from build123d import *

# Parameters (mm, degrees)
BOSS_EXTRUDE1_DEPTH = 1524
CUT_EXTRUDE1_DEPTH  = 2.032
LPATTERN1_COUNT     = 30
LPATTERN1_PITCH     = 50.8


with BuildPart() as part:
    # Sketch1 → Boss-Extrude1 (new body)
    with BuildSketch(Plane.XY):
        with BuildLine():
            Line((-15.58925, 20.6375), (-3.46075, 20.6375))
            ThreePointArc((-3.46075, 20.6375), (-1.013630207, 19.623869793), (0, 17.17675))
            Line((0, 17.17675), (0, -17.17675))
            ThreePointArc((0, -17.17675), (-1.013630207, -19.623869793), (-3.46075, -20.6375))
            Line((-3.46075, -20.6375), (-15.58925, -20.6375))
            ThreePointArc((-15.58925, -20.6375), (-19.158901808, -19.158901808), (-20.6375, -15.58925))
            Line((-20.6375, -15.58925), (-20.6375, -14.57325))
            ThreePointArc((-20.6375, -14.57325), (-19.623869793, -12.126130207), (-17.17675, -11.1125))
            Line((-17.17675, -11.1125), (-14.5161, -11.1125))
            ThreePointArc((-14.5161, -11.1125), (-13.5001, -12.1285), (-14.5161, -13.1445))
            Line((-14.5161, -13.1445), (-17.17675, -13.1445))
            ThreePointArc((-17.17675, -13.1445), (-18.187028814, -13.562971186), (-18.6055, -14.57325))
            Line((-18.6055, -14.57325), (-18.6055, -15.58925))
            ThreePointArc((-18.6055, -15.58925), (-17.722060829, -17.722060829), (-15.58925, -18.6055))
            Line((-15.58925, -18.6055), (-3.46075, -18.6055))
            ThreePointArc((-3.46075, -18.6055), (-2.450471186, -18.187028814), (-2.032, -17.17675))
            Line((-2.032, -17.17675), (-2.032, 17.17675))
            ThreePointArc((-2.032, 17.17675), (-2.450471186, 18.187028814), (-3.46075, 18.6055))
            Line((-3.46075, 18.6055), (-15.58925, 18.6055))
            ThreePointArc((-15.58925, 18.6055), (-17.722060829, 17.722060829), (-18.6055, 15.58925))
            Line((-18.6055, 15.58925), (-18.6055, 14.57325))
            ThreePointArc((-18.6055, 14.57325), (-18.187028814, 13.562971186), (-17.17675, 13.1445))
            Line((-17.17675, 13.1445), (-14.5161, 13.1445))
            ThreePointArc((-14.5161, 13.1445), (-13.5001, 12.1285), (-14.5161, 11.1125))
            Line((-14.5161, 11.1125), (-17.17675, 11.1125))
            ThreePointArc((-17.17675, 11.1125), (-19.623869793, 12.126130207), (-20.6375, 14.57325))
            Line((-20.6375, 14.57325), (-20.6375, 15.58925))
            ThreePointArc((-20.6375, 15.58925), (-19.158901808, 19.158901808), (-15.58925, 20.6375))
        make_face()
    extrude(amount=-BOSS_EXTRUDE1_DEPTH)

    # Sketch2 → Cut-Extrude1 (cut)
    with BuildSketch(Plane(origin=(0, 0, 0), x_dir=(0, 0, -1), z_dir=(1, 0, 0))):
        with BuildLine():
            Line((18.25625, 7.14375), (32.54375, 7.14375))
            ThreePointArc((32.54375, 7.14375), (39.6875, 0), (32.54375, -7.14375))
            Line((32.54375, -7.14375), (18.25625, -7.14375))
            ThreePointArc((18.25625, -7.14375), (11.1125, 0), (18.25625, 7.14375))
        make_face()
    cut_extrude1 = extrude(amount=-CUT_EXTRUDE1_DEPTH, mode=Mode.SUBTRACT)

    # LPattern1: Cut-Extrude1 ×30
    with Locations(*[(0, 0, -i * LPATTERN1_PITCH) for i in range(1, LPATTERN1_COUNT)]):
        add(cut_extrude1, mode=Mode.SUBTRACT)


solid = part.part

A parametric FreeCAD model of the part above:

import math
import FreeCAD as App
import Part
import Sketcher
from FreeCAD import Vector
Q = App.Units.Quantity

doc = App.newDocument("Part")
body = doc.addObject("PartDesign::Body", "Body")

# Sketch on XY plane
sketch1 = doc.addObject("Sketcher::SketchObject", "Sketch")
body.addObject(sketch1)
sketch1.AttachmentSupport = (doc.XY_Plane, [""])
sketch1.MapMode = "FlatFace"
sketch1.addGeometry([
    Part.LineSegment(Vector(-3.5, 20.6, 0), Vector(-15.6, 20.6, 0)),  # 0
    Part.ArcOfCircle(Part.Circle(Vector(-15.6, 15.6, 0), Vector(0, 0, 1), 5), math.radians(90), math.radians(180)),  # 1
    Part.LineSegment(Vector(-20.6, 15.6, 0), Vector(-20.6, 14.6, 0)),  # 2
    Part.ArcOfCircle(Part.Circle(Vector(-17.2, 14.6, 0), Vector(0, 0, 1), 3.5), math.radians(180), math.radians(270)),  # 3
    Part.LineSegment(Vector(-17.2, 11.1, 0), Vector(-14.5, 11.1, 0)),  # 4
    Part.ArcOfCircle(Part.Circle(Vector(-14.5, 12.1, 0), Vector(0, 0, 1), 1), math.radians(-90), math.radians(90)),  # 5
    Part.LineSegment(Vector(-14.5, 13.1, 0), Vector(-17.2, 13.1, 0)),  # 6
    Part.ArcOfCircle(Part.Circle(Vector(-17.2, 14.6, 0), Vector(0, 0, 1), 1.4), math.radians(180), math.radians(270)),  # 7
    Part.LineSegment(Vector(-18.6, 14.6, 0), Vector(-18.6, 15.6, 0)),  # 8
    Part.ArcOfCircle(Part.Circle(Vector(-15.6, 15.6, 0), Vector(0, 0, 1), 3), math.radians(90), math.radians(180)),  # 9
    Part.LineSegment(Vector(-15.6, 18.6, 0), Vector(-3.5, 18.6, 0)),  # 10
    Part.ArcOfCircle(Part.Circle(Vector(-3.5, 17.2, 0), Vector(0, 0, 1), 1.4), math.radians(0), math.radians(90)),  # 11
    Part.LineSegment(Vector(-2, 17.2, 0), Vector(-2, -17.2, 0)),  # 12
    Part.ArcOfCircle(Part.Circle(Vector(-3.5, -17.2, 0), Vector(0, 0, 1), 1.4), math.radians(-90), math.radians(0)),  # 13
    Part.LineSegment(Vector(-3.5, -18.6, 0), Vector(-15.6, -18.6, 0)),  # 14
    Part.ArcOfCircle(Part.Circle(Vector(-15.6, -15.6, 0), Vector(0, 0, 1), 3), math.radians(180), math.radians(270)),  # 15
    Part.LineSegment(Vector(-18.6, -15.6, 0), Vector(-18.6, -14.6, 0)),  # 16
    Part.ArcOfCircle(Part.Circle(Vector(-17.2, -14.6, 0), Vector(0, 0, 1), 1.4), math.radians(90), math.radians(180)),  # 17
    Part.LineSegment(Vector(-17.2, -13.1, 0), Vector(-14.5, -13.1, 0)),  # 18
    Part.ArcOfCircle(Part.Circle(Vector(-14.5, -12.1, 0), Vector(0, 0, 1), 1), math.radians(-90), math.radians(90)),  # 19
    Part.LineSegment(Vector(-14.5, -11.1, 0), Vector(-17.2, -11.1, 0)),  # 20
    Part.ArcOfCircle(Part.Circle(Vector(-17.2, -14.6, 0), Vector(0, 0, 1), 3.5), math.radians(90), math.radians(180)),  # 21
    Part.LineSegment(Vector(-20.6, -14.6, 0), Vector(-20.6, -15.6, 0)),  # 22
    Part.ArcOfCircle(Part.Circle(Vector(-15.6, -15.6, 0), Vector(0, 0, 1), 5), math.radians(180), math.radians(270)),  # 23
    Part.LineSegment(Vector(-15.6, -20.6, 0), Vector(-3.5, -20.6, 0)),  # 24
    Part.ArcOfCircle(Part.Circle(Vector(-3.5, -17.2, 0), Vector(0, 0, 1), 3.5), math.radians(-90), math.radians(0)),  # 25
    Part.LineSegment(Vector(0, -17.2, 0), Vector(0, 17.2, 0)),  # 26
    Part.ArcOfCircle(Part.Circle(Vector(-3.5, 17.2, 0), Vector(0, 0, 1), 3.5), math.radians(0), math.radians(90)),  # 27
], False)
sketch1.addConstraint([
    Sketcher.Constraint("Tangent", 0, 2, 1, 1),
    Sketcher.Constraint("Tangent", 1, 2, 2, 1),
    Sketcher.Constraint("Tangent", 2, 2, 3, 1),
    Sketcher.Constraint("Tangent", 3, 2, 4, 1),
    Sketcher.Constraint("Tangent", 4, 2, 5, 1),
    Sketcher.Constraint("Tangent", 5, 2, 6, 1),
    Sketcher.Constraint("Tangent", 6, 2, 7, 2),
    Sketcher.Constraint("Tangent", 7, 1, 8, 1),
    Sketcher.Constraint("Tangent", 8, 2, 9, 2),
    Sketcher.Constraint("Tangent", 9, 1, 10, 1),
    Sketcher.Constraint("Tangent", 10, 2, 11, 2),
    Sketcher.Constraint("Tangent", 11, 1, 12, 1),
    Sketcher.Constraint("Tangent", 12, 2, 13, 2),
    Sketcher.Constraint("Tangent", 13, 1, 14, 1),
    Sketcher.Constraint("Tangent", 14, 2, 15, 2),
    Sketcher.Constraint("Tangent", 15, 1, 16, 1),
    Sketcher.Constraint("Tangent", 16, 2, 17, 2),
    Sketcher.Constraint("Tangent", 17, 1, 18, 1),
    Sketcher.Constraint("Tangent", 18, 2, 19, 1),
    Sketcher.Constraint("Tangent", 19, 2, 20, 1),
    Sketcher.Constraint("Tangent", 20, 2, 21, 1),
    Sketcher.Constraint("Tangent", 21, 2, 22, 1),
    Sketcher.Constraint("Tangent", 22, 2, 23, 1),
    Sketcher.Constraint("Tangent", 23, 2, 24, 1),
    Sketcher.Constraint("Tangent", 24, 2, 25, 1),
    Sketcher.Constraint("Tangent", 25, 2, 26, 1),
    Sketcher.Constraint("Tangent", 26, 2, 27, 1),
    Sketcher.Constraint("Tangent", 27, 2, 0, 1),
    Sketcher.Constraint("Horizontal", 0),
    Sketcher.Constraint("Vertical", 2),
    Sketcher.Constraint("Horizontal", 4),
    Sketcher.Constraint("Horizontal", 6),
    Sketcher.Constraint("Vertical", 8),
    Sketcher.Constraint("Horizontal", 10),
    Sketcher.Constraint("Vertical", 12),
    Sketcher.Constraint("Horizontal", 14),
    Sketcher.Constraint("Vertical", 16),
    Sketcher.Constraint("Horizontal", 18),
    Sketcher.Constraint("Horizontal", 20),
    Sketcher.Constraint("Vertical", 22),
    Sketcher.Constraint("Horizontal", 24),
    Sketcher.Constraint("Vertical", 26),
    Sketcher.Constraint("Coincident", 7, 3, 3, 3),
    Sketcher.Constraint("Coincident", 9, 3, 1, 3),
    Sketcher.Constraint("Coincident", 21, 3, 17, 3),
    Sketcher.Constraint("Coincident", 23, 3, 15, 3),
    Sketcher.Constraint("Coincident", 25, 3, 13, 3),
    Sketcher.Constraint("Coincident", 27, 3, 11, 3),
    Sketcher.Constraint("Equal", 7, 11),
    Sketcher.Constraint("Equal", 11, 13),
    Sketcher.Constraint("Equal", 9, 15),
    Sketcher.Constraint("Equal", 13, 17),
    Sketcher.Constraint("Symmetric", 25, 2, 26, 2, -1, 1),
    Sketcher.Constraint("Symmetric", 3, 3, 17, 3, -1),
    Sketcher.Constraint("Vertical", 5, 3, 19, 3),
    Sketcher.Constraint("Radius", 5, Q("0.04 in")),
    Sketcher.Constraint("DistanceY", 2, 2, 2, 1, Q("0.04 in")),
    Sketcher.Constraint("DistanceX", 3, 3, 11, 3, Q("0.54 in")),
    Sketcher.Constraint("DistanceY", 13, 3, 7, 3, Q("1.25 in")),
    Sketcher.Constraint("DistanceX", 0, 2, 0, 1, Q("0.4775 in")),
    Sketcher.Constraint("DistanceY", -1, 1, 0, 2, Q("0.8125 in")),
    Sketcher.Constraint("DistanceX", 1, 2, 5, 3, Q("0.241 in")),
])
pad1 = doc.addObject("PartDesign::Pad", "Pad")
body.addObject(pad1)
pad1.Profile = sketch1
pad1.Length = Q("60 in")
pad1.Reversed = True

# Sketch on YZ plane
sketch2 = doc.addObject("Sketcher::SketchObject", "Sketch001")
body.addObject(sketch2)
sketch2.AttachmentSupport = (doc.YZ_Plane, [""])
sketch2.MapMode = "FlatFace"
sketch2.addGeometry([
    Part.LineSegment(Vector(7, -33, 0), Vector(7, -18, 0)),
    Part.ArcOfCircle(Part.Circle(Vector(0, -18, 0), Vector(0, 0, 1), 7), math.radians(0), math.radians(180)),
    Part.LineSegment(Vector(-7, -18, 0), Vector(-7, -33, 0)),
    Part.ArcOfCircle(Part.Circle(Vector(0, -33, 0), Vector(0, 0, 1), 7), math.radians(180), math.radians(360)),
], False)
sketch2.addConstraint([
    Sketcher.Constraint("Tangent", 0, 2, 1, 1),
    Sketcher.Constraint("Tangent", 1, 2, 2, 1),
    Sketcher.Constraint("Tangent", 2, 2, 3, 1),
    Sketcher.Constraint("Tangent", 3, 2, 0, 1),
    Sketcher.Constraint("Vertical", 0),
    Sketcher.Constraint("Vertical", 2),
    Sketcher.Constraint("PointOnObject", 1, 3, -2),
    Sketcher.Constraint("Radius", 1, Q("0.28125 in")),
    Sketcher.Constraint("DistanceY", 0, 1, 0, 2, Q("0.5625 in")),
    Sketcher.Constraint("DistanceY", 1, 3, -1, 1, Q("0.71875 in")),
])
pocket1 = doc.addObject("PartDesign::Pocket", "Pocket")
body.addObject(pocket1)
pocket1.Profile = sketch2
pocket1.Length = Q("0.08 in")
doc.recompute()

linearpattern = doc.addObject("PartDesign::LinearPattern", "LinearPattern")
body.addObject(linearpattern)
linearpattern.Originals = [pocket1]
linearpattern.Direction = (doc.Z_Axis, [""])
linearpattern.Mode = "offset"
linearpattern.Offset = Q("2 in")
linearpattern.Occurrences = 30
linearpattern.Reversed = True
body.Tip = linearpattern

doc.recompute()
